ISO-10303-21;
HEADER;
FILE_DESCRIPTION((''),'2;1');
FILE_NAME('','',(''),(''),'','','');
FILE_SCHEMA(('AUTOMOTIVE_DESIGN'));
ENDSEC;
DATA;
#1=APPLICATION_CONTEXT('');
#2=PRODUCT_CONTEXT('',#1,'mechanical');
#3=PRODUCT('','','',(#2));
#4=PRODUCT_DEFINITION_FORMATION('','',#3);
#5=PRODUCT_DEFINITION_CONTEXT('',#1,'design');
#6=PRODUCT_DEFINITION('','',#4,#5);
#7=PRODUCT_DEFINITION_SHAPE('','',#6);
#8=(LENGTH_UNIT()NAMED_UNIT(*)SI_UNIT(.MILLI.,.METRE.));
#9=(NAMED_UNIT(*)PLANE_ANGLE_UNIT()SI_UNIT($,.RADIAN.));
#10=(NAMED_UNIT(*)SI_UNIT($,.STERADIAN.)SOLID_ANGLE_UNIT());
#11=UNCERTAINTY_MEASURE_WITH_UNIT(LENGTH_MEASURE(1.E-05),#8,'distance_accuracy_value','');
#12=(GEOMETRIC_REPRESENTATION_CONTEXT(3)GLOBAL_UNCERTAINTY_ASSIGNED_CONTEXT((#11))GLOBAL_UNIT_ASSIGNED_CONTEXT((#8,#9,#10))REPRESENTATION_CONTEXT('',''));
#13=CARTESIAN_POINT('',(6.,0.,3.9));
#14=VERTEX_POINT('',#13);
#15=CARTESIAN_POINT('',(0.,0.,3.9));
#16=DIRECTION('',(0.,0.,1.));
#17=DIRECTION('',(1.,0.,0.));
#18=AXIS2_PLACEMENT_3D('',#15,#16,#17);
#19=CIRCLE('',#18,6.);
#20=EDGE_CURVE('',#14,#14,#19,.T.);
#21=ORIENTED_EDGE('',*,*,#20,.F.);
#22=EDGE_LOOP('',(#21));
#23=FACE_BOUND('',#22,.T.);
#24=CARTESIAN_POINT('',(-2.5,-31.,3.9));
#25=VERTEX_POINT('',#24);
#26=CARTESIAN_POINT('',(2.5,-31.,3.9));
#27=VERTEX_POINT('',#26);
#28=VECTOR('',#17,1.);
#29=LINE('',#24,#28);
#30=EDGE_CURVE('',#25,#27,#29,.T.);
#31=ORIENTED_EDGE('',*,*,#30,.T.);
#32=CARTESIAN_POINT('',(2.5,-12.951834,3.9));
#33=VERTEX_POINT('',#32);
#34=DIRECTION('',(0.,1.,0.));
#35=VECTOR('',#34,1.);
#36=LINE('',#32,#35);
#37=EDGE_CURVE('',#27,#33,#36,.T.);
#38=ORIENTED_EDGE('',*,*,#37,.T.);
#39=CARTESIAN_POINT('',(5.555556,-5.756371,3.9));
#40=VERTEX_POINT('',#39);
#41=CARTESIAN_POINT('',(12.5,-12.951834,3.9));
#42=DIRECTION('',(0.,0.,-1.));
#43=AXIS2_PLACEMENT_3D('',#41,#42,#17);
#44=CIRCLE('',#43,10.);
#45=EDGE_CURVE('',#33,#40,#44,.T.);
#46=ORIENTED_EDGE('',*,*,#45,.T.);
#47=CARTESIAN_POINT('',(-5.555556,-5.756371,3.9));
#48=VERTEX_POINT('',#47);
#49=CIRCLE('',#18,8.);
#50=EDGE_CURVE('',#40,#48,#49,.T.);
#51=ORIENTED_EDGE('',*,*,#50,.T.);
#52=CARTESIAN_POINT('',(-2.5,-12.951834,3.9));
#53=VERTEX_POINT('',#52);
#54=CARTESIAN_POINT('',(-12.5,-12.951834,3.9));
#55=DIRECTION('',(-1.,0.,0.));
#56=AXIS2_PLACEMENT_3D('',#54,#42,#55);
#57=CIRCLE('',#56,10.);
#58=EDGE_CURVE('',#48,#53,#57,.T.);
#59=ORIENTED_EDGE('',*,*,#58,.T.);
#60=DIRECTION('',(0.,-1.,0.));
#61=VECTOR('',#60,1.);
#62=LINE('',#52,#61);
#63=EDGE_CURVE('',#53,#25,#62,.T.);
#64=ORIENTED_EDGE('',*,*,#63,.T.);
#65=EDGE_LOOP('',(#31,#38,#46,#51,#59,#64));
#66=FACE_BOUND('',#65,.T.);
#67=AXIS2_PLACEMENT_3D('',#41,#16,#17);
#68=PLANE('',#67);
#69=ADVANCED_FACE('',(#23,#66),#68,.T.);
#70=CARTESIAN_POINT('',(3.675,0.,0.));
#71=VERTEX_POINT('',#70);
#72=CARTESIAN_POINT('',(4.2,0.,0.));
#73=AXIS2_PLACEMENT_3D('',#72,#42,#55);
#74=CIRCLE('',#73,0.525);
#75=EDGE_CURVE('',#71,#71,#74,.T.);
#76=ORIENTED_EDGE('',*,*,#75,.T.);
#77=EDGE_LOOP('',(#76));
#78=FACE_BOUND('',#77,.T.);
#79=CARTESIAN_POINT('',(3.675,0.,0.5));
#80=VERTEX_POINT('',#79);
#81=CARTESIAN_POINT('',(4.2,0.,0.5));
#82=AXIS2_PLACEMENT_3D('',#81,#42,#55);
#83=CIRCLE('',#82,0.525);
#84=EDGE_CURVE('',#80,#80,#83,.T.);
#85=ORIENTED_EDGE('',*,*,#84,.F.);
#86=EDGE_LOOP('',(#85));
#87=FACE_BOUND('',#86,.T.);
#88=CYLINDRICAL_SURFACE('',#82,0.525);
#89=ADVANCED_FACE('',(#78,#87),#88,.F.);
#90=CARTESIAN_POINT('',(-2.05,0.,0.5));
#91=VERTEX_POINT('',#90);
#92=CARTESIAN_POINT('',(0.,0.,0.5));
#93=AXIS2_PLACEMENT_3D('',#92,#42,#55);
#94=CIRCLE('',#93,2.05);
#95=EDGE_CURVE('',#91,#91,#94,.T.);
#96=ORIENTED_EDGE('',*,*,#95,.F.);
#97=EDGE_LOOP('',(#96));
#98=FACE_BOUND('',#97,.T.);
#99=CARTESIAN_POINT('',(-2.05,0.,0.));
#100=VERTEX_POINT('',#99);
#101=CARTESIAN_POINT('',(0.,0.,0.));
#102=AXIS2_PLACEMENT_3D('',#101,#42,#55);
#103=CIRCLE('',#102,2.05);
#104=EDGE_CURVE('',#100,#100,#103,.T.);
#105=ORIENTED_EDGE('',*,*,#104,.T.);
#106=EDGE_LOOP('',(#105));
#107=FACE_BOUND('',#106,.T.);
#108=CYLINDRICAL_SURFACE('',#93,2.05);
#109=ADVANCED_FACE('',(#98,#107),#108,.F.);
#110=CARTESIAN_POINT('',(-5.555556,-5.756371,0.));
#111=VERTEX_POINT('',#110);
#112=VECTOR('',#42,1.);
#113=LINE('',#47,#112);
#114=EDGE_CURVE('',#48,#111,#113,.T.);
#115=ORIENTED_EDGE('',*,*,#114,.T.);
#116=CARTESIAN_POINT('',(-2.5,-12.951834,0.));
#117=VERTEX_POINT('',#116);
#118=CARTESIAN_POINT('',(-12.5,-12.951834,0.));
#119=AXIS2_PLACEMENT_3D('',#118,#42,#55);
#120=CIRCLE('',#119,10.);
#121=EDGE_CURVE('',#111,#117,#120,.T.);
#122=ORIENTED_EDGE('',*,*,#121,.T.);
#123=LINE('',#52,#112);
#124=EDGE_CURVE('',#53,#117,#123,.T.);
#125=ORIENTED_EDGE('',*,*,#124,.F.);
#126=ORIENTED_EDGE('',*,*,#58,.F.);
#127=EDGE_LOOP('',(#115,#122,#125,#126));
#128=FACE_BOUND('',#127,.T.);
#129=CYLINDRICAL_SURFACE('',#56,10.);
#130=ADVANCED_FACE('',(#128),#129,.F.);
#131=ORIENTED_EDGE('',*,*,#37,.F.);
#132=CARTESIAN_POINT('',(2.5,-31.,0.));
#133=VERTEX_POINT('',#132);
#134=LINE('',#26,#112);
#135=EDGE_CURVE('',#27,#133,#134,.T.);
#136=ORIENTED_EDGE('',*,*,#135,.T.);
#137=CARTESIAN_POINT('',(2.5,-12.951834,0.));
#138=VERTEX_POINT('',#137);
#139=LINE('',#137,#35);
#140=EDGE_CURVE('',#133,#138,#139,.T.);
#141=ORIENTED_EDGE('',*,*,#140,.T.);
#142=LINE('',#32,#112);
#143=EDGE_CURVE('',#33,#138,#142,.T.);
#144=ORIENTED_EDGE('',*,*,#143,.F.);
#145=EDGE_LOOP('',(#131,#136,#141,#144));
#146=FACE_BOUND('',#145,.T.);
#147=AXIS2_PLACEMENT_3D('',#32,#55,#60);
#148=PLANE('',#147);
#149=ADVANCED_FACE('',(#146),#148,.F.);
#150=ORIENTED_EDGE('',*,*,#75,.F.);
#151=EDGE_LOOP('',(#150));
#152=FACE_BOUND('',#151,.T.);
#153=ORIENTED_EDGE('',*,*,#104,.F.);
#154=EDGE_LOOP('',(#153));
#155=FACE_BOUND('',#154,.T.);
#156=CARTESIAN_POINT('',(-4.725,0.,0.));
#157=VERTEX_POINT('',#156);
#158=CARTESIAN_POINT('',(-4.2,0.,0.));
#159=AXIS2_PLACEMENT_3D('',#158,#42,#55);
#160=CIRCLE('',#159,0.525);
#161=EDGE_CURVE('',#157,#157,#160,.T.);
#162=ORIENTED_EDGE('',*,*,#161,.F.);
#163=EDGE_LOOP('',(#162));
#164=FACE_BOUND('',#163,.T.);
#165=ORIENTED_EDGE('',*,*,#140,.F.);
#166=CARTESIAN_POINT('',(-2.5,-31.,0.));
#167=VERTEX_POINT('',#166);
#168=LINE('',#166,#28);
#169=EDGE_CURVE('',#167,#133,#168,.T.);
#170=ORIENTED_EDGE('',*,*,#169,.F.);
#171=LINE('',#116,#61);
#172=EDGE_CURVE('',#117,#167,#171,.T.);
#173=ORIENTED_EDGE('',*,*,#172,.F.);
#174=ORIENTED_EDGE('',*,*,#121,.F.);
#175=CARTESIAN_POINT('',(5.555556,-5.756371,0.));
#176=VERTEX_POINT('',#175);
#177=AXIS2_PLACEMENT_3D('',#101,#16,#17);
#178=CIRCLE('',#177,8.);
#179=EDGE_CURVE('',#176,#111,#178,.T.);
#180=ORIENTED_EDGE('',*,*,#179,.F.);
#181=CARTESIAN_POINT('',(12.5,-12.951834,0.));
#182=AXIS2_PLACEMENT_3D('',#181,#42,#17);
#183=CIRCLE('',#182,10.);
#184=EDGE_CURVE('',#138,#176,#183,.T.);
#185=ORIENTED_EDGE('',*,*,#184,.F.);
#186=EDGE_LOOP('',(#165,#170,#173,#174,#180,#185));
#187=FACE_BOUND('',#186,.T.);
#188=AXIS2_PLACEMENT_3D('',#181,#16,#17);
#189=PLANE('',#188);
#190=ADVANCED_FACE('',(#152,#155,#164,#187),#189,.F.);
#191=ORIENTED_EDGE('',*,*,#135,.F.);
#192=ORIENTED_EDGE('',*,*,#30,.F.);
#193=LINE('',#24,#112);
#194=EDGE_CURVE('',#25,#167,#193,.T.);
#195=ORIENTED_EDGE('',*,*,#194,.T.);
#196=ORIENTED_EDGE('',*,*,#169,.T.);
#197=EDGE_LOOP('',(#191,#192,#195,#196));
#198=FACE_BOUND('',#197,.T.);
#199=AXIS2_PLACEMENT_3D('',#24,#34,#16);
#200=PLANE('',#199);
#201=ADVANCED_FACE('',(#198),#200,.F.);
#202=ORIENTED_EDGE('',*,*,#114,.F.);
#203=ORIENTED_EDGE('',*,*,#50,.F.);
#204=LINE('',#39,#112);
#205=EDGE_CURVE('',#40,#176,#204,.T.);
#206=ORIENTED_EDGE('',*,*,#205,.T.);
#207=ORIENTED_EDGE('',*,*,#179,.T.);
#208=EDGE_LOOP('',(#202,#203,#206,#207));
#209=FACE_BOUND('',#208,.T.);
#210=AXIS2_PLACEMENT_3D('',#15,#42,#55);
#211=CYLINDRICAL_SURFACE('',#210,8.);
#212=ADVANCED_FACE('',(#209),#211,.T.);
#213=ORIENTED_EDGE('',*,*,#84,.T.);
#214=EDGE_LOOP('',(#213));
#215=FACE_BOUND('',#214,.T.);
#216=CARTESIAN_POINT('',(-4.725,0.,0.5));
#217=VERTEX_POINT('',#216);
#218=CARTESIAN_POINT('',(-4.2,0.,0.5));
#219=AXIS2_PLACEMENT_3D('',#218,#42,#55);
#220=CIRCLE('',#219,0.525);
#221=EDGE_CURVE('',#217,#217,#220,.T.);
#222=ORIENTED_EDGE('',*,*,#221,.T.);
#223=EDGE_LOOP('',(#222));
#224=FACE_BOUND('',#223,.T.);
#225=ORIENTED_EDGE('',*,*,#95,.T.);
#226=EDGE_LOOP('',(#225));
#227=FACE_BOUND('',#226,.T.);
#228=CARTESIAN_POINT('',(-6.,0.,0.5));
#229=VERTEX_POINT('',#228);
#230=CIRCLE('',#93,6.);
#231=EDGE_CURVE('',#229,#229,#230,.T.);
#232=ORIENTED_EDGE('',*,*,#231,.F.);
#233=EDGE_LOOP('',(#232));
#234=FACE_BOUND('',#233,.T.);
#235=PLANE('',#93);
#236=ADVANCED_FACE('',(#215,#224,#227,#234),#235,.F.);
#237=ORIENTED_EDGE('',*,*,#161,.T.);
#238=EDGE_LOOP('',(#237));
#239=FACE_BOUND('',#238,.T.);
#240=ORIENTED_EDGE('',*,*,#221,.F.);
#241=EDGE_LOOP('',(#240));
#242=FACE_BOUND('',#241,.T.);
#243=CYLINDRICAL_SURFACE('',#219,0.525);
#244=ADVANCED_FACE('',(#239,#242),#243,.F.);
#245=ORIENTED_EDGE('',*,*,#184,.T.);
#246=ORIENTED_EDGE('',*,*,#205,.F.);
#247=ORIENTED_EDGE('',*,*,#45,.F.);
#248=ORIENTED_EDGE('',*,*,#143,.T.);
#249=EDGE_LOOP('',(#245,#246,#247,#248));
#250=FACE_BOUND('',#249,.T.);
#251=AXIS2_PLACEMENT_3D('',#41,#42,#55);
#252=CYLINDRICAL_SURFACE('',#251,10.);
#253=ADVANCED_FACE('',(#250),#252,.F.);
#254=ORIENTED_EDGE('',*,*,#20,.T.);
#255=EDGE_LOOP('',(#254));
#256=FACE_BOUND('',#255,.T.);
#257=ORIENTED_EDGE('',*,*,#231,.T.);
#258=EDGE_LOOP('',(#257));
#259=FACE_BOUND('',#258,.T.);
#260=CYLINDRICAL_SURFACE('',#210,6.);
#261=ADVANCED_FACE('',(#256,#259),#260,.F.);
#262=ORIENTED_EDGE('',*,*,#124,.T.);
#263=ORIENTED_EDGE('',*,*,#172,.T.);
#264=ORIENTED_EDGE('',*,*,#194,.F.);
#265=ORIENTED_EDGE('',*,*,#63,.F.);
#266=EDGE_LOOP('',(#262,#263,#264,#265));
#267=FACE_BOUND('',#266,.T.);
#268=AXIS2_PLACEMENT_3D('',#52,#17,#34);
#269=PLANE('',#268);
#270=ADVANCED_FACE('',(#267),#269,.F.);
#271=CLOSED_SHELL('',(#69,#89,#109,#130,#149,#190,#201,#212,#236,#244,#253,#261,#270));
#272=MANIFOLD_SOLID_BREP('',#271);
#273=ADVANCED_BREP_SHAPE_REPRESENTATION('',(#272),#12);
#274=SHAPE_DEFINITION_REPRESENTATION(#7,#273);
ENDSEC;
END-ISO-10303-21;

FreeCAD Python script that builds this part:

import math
import FreeCAD as App
import Part
import Sketcher

V = App.Vector
Q = App.Units.Quantity

doc = App.newDocument("Part")
params = doc.addObject("Spreadsheet::Sheet", "Params")
for row, (alias, value) in enumerate([
    ("sketch1_diameter", "12 mm"),
    ("sketch1_radius", "10 mm"),
    ("sketch1_radius2", "8 mm"),
    ("sketch1_width", "5 mm"),
    ("pad1_length", "3.9 mm"),
    ("sketch2_diameter", "16 mm"),
    ("sketch2_diameter2", "4.1 mm"),
    ("sketch2_diameter3", "1.05 mm"),
    ("pad2_length", "0.5 mm"),
], start=1):
    params.set(f"A{row}", alias)
    params.set(f"B{row}", "=" + value)
    params.setAlias(f"B{row}", alias)

body = doc.addObject("PartDesign::Body", "Body")

# Sketch on XY plane
sketch1 = doc.addObject("Sketcher::SketchObject", "Sketch")
body.addObject(sketch1)
sketch1.AttachmentSupport = (doc.XY_Plane, [""])
sketch1.MapMode = "FlatFace"
sketch1.addGeometry(Part.LineSegment(V(-2, -31, 0), V(2, -31, 0)), False)
sketch1.addGeometry(Part.LineSegment(V(2, -31, 0), V(2, -13, 0)), False)
sketch1.addGeometry(Part.ArcOfCircle(Part.Circle(V(12, -13, 0), V(0, 0, 1), 10), math.radians(134), math.radians(180)), False)
sketch1.addGeometry(Part.ArcOfCircle(Part.Circle(V(0, 0, 0), V(0, 0, 1), 8), math.radians(-46), math.radians(226)), False)
sketch1.addGeometry(Part.ArcOfCircle(Part.Circle(V(-12, -13, 0), V(0, 0, 1), 10), math.radians(0), math.radians(46)), False)
sketch1.addGeometry(Part.LineSegment(V(-2, -13, 0), V(-2, -31, 0)), False)
sketch1.addGeometry(Part.Circle(V(0, 0, 0), V(0, 0, 1), 6), False)
sketch1.addConstraint(Sketcher.Constraint("Coincident", 0, 2, 1, 1))
sketch1.addConstraint(Sketcher.Constraint("Tangent", 1, 2, 2, 2))
sketch1.addConstraint(Sketcher.Constraint("Tangent", 2, 1, 3, 1))
sketch1.addConstraint(Sketcher.Constraint("Tangent", 3, 2, 4, 2))
sketch1.addConstraint(Sketcher.Constraint("Tangent", 4, 1, 5, 1))
sketch1.addConstraint(Sketcher.Constraint("Coincident", 5, 2, 0, 1))
sketch1.addConstraint(Sketcher.Constraint("Horizontal", 0))
sketch1.addConstraint(Sketcher.Constraint("Vertical", 1))
sketch1.addConstraint(Sketcher.Constraint("Vertical", 5))
sketch1.addConstraint(Sketcher.Constraint("Coincident", 3, 3, -1, 1))
sketch1.addConstraint(Sketcher.Constraint("Coincident", 6, 3, -1, 1))
sketch1.addConstraint(Sketcher.Constraint("Equal", 2, 4))
sketch1.addConstraint(Sketcher.Constraint("Horizontal", 2, 3, 4, 3))
sketch1.addConstraint(Sketcher.Constraint("Diameter", 6, Q("12 mm")))
sketch1.addConstraint(Sketcher.Constraint("Radius", 2, Q("10 mm")))
sketch1.addConstraint(Sketcher.Constraint("Radius", 3, Q("8 mm")))
sketch1.addConstraint(Sketcher.Constraint("DistanceX", 0, 1, 0, 2, Q("5 mm")))
sketch1.addConstraint(Sketcher.Constraint("DistanceY", 0, 2, -1, 1, Q("31 mm")))
sketch1.setExpression("Constraints[13]", "Params.sketch1_diameter")
sketch1.setExpression("Constraints[14]", "Params.sketch1_radius")
sketch1.setExpression("Constraints[15]", "Params.sketch1_radius2")
sketch1.setExpression("Constraints[16]", "Params.sketch1_width")
pad1 = doc.addObject("PartDesign::Pad", "Pad")
body.addObject(pad1)
pad1.Profile = sketch1
pad1.setExpression("Length", "Params.pad1_length")

# Sketch on XY plane
sketch2 = doc.addObject("Sketcher::SketchObject", "Sketch001")
body.addObject(sketch2)
sketch2.AttachmentSupport = (doc.XY_Plane, [""])
sketch2.MapMode = "FlatFace"
sketch2.addGeometry(Part.Circle(V(0, 0, 0), V(0, 0, 1), 8), False)
sketch2.addGeometry(Part.Circle(V(4.2, 0, 0), V(0, 0, 1), 0.5), False)
sketch2.addGeometry(Part.Circle(V(0, 0, 0), V(0, 0, 1), 2), False)
sketch2.addGeometry(Part.Circle(V(-4.2, 0, 0), V(0, 0, 1), 0.5), False)
sketch2.addConstraint(Sketcher.Constraint("Coincident", 0, 3, -1, 1))
sketch2.addConstraint(Sketcher.Constraint("Coincident", 2, 3, -1, 1))
sketch2.addConstraint(Sketcher.Constraint("Equal", 1, 3))
sketch2.addConstraint(Sketcher.Constraint("Symmetric", 1, 3, 3, 3, -1, 1))
sketch2.addConstraint(Sketcher.Constraint("PointOnObject", 1, 3, -1))
sketch2.addConstraint(Sketcher.Constraint("Diameter", 0, Q("16 mm")))
sketch2.addConstraint(Sketcher.Constraint("Diameter", 2, Q("4.1 mm")))
sketch2.addConstraint(Sketcher.Constraint("Diameter", 1, Q("1.05 mm")))
sketch2.addConstraint(Sketcher.Constraint("DistanceX", -1, 1, 1, 3, Q("4.2 mm")))
sketch2.setExpression("Constraints[5]", "Params.sketch2_diameter")
sketch2.setExpression("Constraints[6]", "Params.sketch2_diameter2")
sketch2.setExpression("Constraints[7]", "Params.sketch2_diameter3")
pad2 = doc.addObject("PartDesign::Pad", "Pad001")
body.addObject(pad2)
pad2.Profile = sketch2
pad2.setExpression("Length", "Params.pad2_length")

doc.recompute()
